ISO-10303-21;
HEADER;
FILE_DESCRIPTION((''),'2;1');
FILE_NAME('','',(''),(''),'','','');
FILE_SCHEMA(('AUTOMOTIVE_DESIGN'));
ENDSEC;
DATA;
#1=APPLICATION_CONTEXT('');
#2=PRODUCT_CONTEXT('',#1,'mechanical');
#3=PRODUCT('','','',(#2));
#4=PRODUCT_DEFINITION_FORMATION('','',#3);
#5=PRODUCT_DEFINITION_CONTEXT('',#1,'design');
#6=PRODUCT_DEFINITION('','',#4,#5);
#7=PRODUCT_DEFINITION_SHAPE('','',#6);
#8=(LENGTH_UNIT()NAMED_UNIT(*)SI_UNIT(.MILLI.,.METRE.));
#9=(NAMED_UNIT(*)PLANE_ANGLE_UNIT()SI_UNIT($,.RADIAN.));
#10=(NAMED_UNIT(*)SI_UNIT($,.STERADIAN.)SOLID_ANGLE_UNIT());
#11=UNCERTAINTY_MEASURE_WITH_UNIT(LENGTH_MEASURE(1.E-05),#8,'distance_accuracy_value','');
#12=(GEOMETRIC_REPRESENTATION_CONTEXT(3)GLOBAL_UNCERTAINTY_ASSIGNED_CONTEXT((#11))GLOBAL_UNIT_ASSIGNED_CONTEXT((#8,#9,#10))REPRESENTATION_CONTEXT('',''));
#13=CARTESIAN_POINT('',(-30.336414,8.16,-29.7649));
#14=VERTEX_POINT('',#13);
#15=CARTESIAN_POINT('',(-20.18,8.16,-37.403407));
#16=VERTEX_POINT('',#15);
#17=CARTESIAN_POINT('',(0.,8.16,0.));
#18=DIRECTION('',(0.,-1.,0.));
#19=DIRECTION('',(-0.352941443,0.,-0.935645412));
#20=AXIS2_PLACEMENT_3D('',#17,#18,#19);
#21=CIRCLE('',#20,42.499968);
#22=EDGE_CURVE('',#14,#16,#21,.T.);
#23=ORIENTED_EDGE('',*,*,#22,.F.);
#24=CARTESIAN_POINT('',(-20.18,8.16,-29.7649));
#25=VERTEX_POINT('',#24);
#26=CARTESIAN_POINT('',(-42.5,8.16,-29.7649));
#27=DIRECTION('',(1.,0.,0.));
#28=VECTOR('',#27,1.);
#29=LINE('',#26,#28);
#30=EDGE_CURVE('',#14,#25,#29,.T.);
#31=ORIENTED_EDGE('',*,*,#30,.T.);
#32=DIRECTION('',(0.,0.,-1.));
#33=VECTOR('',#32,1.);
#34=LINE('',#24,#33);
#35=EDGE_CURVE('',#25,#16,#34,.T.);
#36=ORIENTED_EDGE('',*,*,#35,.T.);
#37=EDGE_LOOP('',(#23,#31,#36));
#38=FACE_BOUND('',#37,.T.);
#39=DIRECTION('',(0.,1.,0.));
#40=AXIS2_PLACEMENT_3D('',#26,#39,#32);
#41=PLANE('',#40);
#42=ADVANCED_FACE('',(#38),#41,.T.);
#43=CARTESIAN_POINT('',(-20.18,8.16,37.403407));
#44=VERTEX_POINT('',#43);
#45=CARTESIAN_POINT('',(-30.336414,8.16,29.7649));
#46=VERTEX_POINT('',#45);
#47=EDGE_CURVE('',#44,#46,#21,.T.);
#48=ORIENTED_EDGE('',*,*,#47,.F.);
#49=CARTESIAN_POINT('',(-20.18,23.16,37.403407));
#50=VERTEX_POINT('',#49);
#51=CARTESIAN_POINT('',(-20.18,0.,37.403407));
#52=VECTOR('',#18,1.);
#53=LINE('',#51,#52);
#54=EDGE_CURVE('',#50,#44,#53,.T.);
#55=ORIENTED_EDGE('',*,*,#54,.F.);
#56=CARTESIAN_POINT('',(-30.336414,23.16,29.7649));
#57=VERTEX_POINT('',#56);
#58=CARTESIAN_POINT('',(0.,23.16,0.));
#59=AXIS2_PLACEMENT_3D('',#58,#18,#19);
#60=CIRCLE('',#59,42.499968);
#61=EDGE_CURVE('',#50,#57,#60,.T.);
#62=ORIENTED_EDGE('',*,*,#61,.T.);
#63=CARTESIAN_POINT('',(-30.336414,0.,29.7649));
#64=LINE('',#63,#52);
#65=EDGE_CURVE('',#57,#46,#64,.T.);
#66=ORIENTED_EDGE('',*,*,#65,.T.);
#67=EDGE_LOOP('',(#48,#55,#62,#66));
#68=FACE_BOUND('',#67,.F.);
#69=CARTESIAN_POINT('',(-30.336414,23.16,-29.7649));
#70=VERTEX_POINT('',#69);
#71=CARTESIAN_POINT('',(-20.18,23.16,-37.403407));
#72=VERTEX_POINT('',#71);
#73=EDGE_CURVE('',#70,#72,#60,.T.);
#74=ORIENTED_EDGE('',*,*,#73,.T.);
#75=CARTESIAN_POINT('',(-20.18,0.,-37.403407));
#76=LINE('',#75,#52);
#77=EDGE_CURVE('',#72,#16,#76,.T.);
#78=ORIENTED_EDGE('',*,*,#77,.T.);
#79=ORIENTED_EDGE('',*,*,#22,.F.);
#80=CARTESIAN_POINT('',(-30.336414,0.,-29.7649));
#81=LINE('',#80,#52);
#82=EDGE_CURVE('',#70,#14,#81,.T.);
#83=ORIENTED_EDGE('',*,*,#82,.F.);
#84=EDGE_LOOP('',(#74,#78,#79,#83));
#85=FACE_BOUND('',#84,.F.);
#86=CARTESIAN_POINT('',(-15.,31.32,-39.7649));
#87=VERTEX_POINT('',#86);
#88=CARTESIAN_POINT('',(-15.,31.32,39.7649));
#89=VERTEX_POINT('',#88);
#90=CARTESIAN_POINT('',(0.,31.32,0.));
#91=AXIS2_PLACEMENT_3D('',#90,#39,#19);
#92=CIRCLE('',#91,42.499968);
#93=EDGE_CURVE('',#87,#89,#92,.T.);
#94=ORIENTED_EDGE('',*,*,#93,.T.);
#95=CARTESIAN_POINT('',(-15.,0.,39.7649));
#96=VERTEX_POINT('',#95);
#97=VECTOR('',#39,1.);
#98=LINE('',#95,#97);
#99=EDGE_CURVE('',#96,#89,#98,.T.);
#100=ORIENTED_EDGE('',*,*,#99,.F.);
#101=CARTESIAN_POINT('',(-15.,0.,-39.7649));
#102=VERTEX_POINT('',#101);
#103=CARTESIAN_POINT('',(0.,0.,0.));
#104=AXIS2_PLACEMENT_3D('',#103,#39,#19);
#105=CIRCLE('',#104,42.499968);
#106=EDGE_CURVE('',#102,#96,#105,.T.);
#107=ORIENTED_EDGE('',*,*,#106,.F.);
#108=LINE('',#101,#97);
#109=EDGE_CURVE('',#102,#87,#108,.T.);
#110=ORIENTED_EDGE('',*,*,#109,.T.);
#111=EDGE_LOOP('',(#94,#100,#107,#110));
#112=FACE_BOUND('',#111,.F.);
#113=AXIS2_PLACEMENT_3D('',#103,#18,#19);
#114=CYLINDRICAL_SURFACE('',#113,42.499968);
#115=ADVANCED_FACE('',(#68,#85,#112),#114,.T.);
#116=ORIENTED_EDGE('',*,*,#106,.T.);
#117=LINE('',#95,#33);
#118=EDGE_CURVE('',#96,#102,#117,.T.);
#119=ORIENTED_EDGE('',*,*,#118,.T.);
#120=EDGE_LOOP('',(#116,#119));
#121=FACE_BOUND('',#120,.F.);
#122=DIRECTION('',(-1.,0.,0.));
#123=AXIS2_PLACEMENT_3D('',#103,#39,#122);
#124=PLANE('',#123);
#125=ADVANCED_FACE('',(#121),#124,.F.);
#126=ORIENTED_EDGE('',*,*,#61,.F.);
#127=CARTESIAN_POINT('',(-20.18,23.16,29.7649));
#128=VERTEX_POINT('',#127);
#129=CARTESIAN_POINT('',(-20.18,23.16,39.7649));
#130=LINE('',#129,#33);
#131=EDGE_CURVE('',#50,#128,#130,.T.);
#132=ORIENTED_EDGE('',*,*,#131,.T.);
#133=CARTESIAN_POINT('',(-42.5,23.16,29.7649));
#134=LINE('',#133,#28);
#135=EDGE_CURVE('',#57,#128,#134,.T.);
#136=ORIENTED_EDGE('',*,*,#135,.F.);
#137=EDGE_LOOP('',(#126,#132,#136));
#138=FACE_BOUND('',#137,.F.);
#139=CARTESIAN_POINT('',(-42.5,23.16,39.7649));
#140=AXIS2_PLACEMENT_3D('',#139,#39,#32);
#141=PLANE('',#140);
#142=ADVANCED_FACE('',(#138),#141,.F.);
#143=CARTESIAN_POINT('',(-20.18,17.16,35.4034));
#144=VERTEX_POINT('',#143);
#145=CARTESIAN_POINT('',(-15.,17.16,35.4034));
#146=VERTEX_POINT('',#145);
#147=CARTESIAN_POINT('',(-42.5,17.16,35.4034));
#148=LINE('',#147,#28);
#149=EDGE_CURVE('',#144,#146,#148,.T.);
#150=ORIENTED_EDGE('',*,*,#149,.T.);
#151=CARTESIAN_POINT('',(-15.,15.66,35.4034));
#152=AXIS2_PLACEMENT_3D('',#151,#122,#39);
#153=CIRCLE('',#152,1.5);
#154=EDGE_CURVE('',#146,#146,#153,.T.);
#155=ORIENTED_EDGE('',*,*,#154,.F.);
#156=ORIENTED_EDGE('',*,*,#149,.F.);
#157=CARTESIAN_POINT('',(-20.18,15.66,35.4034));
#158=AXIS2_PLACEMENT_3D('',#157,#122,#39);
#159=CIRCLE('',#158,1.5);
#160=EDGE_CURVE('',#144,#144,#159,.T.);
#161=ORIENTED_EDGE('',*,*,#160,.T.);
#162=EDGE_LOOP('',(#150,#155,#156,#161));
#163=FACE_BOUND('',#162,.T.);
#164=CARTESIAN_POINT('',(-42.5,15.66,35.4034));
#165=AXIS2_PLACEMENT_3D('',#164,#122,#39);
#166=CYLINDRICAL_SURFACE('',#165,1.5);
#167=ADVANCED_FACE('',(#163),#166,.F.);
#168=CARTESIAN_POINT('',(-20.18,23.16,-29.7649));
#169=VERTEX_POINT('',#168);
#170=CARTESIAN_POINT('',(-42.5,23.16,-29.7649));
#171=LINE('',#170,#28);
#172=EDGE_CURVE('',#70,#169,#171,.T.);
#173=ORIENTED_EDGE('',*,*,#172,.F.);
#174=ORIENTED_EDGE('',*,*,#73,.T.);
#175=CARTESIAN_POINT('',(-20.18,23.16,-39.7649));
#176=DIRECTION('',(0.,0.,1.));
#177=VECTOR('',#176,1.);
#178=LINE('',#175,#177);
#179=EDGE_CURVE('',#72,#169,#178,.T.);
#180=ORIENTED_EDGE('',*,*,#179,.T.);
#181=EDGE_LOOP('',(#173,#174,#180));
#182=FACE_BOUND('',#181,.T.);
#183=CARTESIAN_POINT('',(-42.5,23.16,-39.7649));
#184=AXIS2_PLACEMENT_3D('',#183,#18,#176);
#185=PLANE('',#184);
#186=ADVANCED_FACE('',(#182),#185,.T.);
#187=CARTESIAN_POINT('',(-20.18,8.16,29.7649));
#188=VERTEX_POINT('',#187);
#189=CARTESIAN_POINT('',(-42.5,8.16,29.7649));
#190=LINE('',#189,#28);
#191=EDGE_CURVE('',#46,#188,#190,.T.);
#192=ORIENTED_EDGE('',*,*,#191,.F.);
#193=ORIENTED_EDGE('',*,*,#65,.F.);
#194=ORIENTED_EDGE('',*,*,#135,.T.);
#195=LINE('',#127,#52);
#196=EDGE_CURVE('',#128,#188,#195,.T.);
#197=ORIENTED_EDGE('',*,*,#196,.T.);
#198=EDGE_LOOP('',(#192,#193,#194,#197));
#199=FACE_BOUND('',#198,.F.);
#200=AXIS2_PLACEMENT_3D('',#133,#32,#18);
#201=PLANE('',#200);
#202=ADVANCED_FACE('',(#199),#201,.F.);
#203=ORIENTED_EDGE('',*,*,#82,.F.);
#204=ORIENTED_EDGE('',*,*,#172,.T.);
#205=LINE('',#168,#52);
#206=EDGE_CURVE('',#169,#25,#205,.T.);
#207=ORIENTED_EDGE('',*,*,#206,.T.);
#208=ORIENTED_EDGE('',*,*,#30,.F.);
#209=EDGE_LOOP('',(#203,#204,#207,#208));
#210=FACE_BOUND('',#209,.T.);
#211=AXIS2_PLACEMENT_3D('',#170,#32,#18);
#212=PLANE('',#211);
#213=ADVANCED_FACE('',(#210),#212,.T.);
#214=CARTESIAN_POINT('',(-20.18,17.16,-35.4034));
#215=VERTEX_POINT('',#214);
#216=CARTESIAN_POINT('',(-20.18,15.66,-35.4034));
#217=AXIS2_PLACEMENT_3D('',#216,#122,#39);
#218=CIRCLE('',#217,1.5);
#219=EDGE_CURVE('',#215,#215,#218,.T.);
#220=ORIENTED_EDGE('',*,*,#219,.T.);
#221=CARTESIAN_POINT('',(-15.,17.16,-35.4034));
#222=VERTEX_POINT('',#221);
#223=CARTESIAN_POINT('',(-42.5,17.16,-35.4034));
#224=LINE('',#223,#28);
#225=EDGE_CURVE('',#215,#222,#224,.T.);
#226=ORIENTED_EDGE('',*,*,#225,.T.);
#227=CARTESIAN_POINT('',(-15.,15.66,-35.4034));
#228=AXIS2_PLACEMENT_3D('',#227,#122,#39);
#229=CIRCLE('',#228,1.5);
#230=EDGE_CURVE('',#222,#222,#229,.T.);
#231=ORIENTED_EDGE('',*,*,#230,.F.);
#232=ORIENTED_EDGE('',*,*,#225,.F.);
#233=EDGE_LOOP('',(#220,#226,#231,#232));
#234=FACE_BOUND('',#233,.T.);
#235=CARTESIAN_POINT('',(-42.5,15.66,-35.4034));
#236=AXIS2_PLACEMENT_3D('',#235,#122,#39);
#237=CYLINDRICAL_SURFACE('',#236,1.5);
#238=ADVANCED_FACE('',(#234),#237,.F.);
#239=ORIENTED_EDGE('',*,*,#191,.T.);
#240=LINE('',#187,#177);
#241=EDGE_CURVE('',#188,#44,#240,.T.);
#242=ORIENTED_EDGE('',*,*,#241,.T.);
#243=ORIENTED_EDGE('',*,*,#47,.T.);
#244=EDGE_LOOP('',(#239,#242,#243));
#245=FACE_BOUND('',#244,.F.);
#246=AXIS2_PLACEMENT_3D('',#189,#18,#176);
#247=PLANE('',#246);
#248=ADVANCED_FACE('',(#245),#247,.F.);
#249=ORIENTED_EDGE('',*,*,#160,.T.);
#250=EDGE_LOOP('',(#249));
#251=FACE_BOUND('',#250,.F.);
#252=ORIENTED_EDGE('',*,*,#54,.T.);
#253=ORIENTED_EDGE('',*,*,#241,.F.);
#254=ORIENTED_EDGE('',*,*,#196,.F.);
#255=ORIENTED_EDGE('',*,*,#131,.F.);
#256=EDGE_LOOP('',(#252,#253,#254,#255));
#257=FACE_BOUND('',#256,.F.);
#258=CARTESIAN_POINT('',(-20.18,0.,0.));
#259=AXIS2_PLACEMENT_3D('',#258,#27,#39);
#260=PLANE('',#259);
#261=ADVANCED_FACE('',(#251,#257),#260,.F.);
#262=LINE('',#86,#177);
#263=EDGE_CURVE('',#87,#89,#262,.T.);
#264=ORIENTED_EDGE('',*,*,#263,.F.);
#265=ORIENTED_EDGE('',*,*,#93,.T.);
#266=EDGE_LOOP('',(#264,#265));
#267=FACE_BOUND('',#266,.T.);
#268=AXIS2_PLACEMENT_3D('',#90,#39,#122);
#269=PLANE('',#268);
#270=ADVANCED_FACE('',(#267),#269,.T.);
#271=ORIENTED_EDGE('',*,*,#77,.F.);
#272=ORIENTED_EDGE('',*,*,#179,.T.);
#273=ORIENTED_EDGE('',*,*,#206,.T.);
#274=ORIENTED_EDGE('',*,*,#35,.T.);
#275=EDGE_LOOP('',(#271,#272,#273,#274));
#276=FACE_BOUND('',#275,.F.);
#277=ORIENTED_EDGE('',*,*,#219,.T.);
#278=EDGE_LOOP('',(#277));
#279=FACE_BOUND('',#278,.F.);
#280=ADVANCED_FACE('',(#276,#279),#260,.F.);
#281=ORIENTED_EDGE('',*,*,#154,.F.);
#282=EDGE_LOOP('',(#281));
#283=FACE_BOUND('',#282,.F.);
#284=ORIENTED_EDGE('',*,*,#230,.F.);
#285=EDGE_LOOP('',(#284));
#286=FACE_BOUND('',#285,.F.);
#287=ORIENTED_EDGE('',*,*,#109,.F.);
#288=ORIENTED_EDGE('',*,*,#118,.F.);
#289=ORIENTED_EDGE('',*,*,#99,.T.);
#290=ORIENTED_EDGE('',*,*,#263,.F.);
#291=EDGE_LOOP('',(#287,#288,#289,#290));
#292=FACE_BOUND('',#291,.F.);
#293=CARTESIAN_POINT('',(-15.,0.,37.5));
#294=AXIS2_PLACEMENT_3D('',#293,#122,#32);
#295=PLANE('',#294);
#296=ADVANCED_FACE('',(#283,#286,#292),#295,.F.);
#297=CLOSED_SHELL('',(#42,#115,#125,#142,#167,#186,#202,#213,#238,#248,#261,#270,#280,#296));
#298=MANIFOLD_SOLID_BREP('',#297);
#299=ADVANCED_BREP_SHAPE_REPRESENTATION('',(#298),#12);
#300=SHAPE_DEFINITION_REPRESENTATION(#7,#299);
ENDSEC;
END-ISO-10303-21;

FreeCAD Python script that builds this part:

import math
import FreeCAD as App
import Part
import Sketcher
from FreeCAD import Vector
Q = App.Units.Quantity

doc = App.newDocument("Part")
params = doc.addObject("Spreadsheet::Sheet", "Params")
for row, (alias, value) in enumerate([
    ("sketch1_radius", "42.5 mm"),
    ("pad1_length", "31.32 mm"),
    ("sketch2_width", "15 mm"),
    ("sketch2_height", "10 mm"),
    ("pocket1_length", "22.32 mm"),
    ("sketch3_diameter", "3 mm"),
], start=1):
    params.set(f"A{row}", alias)
    params.set(f"B{row}", "=" + value)
    params.setAlias(f"B{row}", alias)

body = doc.addObject("PartDesign::Body", "Body")

# Sketch on XZ plane
sketch1 = body.newObject("Sketcher::SketchObject", "Sketch")
sketch1.AttachmentSupport = (doc.getObject("XZ_Plane"), [""])
sketch1.MapMode = "FlatFace"
sketch1.addGeometry(Part.LineSegment(Vector(-15, 40, 0), Vector(-15, -40, 0)), False)
sketch1.addGeometry(Part.ArcOfCircle(Part.Circle(Vector(0, 0, 0), Vector(0, 0, 1), 42), math.radians(111), math.radians(249)), False)
sketch1.addConstraint(Sketcher.Constraint("Coincident", 0, 1, 1, 1))
sketch1.addConstraint(Sketcher.Constraint("Coincident", 1, 2, 0, 2))
sketch1.addConstraint(Sketcher.Constraint("Vertical", 0))
sketch1.addConstraint(Sketcher.Constraint("Coincident", 1, 3, -1, 1))
sketch1.addConstraint(Sketcher.Constraint("Radius", 1, Q("42.5 mm")))
sketch1.addConstraint(Sketcher.Constraint("DistanceX", 0, 1, -1, 1, Q("15 mm")))
sketch1.setExpression("Constraints[4]", "Params.sketch1_radius")
pad1 = body.newObject("PartDesign::Pad", "Pad")
pad1.Profile = sketch1
pad1.setExpression("Length", "Params.pad1_length")
pad1.Reversed = True

# Sketch on YZ plane
sketch2 = body.newObject("Sketcher::SketchObject", "Sketch001")
sketch2.AttachmentSupport = (doc.getObject("YZ_Plane"), [""])
sketch2.MapMode = "FlatFace"
sketch2.AttachmentOffset = App.Placement(Vector(0, 0, -42.5), App.Rotation())
sketch2.addGeometry(Part.LineSegment(Vector(23, 30, 0), Vector(23, 40, 0)), False)
sketch2.addGeometry(Part.LineSegment(Vector(23, 40, 0), Vector(8, 40, 0)), False)
sketch2.addGeometry(Part.LineSegment(Vector(8, 40, 0), Vector(8, 30, 0)), False)
sketch2.addGeometry(Part.LineSegment(Vector(8, 30, 0), Vector(23, 30, 0)), False)
sketch2.addGeometry(Part.LineSegment(Vector(8, -40, 0), Vector(23, -40, 0)), False)
sketch2.addGeometry(Part.LineSegment(Vector(23, -40, 0), Vector(23, -30, 0)), False)
sketch2.addGeometry(Part.LineSegment(Vector(23, -30, 0), Vector(8, -30, 0)), False)
sketch2.addGeometry(Part.LineSegment(Vector(8, -30, 0), Vector(8, -40, 0)), False)
sketch2.addConstraint(Sketcher.Constraint("Coincident", 0, 2, 1, 1))
sketch2.addConstraint(Sketcher.Constraint("Coincident", 1, 2, 2, 1))
sketch2.addConstraint(Sketcher.Constraint("Coincident", 2, 2, 3, 1))
sketch2.addConstraint(Sketcher.Constraint("Coincident", 3, 2, 0, 1))
sketch2.addConstraint(Sketcher.Constraint("Coincident", 4, 2, 5, 1))
sketch2.addConstraint(Sketcher.Constraint("Coincident", 5, 2, 6, 1))
sketch2.addConstraint(Sketcher.Constraint("Coincident", 6, 2, 7, 1))
sketch2.addConstraint(Sketcher.Constraint("Coincident", 7, 2, 4, 1))
sketch2.addConstraint(Sketcher.Constraint("Vertical", 0))
sketch2.addConstraint(Sketcher.Constraint("Horizontal", 1))
sketch2.addConstraint(Sketcher.Constraint("Vertical", 2))
sketch2.addConstraint(Sketcher.Constraint("Horizontal", 3))
sketch2.addConstraint(Sketcher.Constraint("Horizontal", 4))
sketch2.addConstraint(Sketcher.Constraint("Vertical", 5))
sketch2.addConstraint(Sketcher.Constraint("Horizontal", 6))
sketch2.addConstraint(Sketcher.Constraint("Vertical", 7))
sketch2.addConstraint(Sketcher.Constraint("Symmetric", 0, 2, 4, 2, -1))
sketch2.addConstraint(Sketcher.Constraint("Symmetric", 2, 2, 6, 2, -1))
sketch2.addConstraint(Sketcher.Constraint("DistanceX", 1, 2, 1, 1, Q("15 mm")))
sketch2.addConstraint(Sketcher.Constraint("DistanceY", 0, 1, 0, 2, Q("10 mm")))
sketch2.addConstraint(Sketcher.Constraint("DistanceX", -1, 1, 0, 2, Q("23.16 mm")))
sketch2.addConstraint(Sketcher.Constraint("DistanceY", -1, 1, 0, 2, Q("39.765 mm")))
sketch2.setExpression("Constraints[18]", "Params.sketch2_width")
sketch2.setExpression("Constraints[19]", "Params.sketch2_height")
pocket1 = body.newObject("PartDesign::Pocket", "Pocket")
pocket1.Profile = sketch2
pocket1.setExpression("Length", "Params.pocket1_length")
pocket1.Reversed = True

# Sketch on YZ plane
sketch3 = body.newObject("Sketcher::SketchObject", "Sketch002")
sketch3.AttachmentSupport = (doc.getObject("YZ_Plane"), [""])
sketch3.MapMode = "FlatFace"
sketch3.AttachmentOffset = App.Placement(Vector(0, 0, -42.5), App.Rotation())
sketch3.addGeometry(Part.Circle(Vector(15.7, -35.4, 0), Vector(0, 0, 1), 1.5), False)
sketch3.addGeometry(Part.Circle(Vector(15.7, 35.4, 0), Vector(0, 0, 1), 1.5), False)
sketch3.addConstraint(Sketcher.Constraint("Equal", 0, 1))
sketch3.addConstraint(Sketcher.Constraint("Symmetric", 0, 3, 1, 3, -1))
sketch3.addConstraint(Sketcher.Constraint("Diameter", 0, Q("3 mm")))
sketch3.addConstraint(Sketcher.Constraint("DistanceX", -1, 1, 0, 3, Q("15.66 mm")))
sketch3.addConstraint(Sketcher.Constraint("DistanceY", 0, 3, -1, 1, Q("35.4034 mm")))
sketch3.setExpression("Constraints[2]", "Params.sketch3_diameter")
pocket2 = body.newObject("PartDesign::Pocket", "Pocket001")
pocket2.Profile = sketch3
pocket2.Type = "ThroughAll"
pocket2.Reversed = True

doc.recompute()
